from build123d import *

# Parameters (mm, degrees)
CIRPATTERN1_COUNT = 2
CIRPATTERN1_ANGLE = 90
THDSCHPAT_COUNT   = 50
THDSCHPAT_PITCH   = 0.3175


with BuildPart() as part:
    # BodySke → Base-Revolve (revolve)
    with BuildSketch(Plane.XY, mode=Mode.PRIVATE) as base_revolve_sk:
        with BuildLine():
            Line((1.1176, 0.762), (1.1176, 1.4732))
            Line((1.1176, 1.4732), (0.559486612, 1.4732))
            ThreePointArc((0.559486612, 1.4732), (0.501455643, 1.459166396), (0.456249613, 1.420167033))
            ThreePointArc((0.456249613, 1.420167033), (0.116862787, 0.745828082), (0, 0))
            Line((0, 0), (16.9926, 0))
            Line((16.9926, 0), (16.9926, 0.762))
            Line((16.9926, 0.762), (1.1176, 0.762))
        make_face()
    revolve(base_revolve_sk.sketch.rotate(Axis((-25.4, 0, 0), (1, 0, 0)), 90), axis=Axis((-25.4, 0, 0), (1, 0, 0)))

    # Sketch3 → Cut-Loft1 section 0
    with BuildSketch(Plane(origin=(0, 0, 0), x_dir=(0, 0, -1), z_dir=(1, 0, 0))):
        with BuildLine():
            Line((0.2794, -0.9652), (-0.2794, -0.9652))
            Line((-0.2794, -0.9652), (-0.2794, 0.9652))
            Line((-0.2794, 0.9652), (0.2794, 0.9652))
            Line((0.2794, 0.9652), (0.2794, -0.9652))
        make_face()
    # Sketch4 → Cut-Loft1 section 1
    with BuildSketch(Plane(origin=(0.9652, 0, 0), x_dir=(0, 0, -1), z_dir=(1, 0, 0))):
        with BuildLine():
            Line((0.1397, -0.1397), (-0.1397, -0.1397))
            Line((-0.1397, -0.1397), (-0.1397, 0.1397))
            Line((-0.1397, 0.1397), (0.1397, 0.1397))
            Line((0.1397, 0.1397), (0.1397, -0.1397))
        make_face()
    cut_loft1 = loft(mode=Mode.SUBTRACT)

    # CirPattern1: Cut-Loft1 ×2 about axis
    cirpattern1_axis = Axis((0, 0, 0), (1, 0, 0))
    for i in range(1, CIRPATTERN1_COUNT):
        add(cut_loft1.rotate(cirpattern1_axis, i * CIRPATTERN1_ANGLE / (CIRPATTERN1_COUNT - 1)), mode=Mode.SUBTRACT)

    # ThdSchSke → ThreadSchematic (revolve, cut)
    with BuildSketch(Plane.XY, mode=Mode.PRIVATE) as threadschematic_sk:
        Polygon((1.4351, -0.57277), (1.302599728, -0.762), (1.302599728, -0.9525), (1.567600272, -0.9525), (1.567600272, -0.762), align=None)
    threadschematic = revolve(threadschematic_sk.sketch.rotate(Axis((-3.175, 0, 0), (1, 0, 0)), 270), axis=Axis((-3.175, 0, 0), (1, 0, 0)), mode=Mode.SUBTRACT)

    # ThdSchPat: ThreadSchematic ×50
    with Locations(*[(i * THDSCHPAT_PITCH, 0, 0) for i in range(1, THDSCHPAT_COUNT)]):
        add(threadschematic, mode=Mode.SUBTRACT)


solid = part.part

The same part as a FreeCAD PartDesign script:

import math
import FreeCAD as App
import Part
import Sketcher

V = App.Vector
Q = App.Units.Quantity


def add_polygon(sketch, points):
    """Adds a closed chain of lines whose ends are joined by coincident constraints."""
    first, n = sketch.GeometryCount, len(points)
    for a, b in zip(points, points[1:] + points[:1]):
        sketch.addGeometry(Part.LineSegment(App.Vector(*a, 0), App.Vector(*b, 0)), False)
    for i in range(n):
        sketch.addConstraint(Sketcher.Constraint("Coincident", first + i, 2, first + (i + 1) % n, 1))

doc = App.newDocument("Part")
body = doc.addObject("PartDesign::Body", "Body")

# Sketch on XY plane
sketch1 = body.newObject("Sketcher::SketchObject", "Sketch")
sketch1.AttachmentSupport = (doc.getObject("XY_Plane"), [""])
sketch1.MapMode = "FlatFace"
sketch1.addGeometry([
    Part.LineSegment(V(1.12, 0.76, 0), V(1.12, 1.47, 0)),  # 0
    Part.LineSegment(V(1.12, 1.47, 0), V(0.56, 1.47, 0)),  # 1
    Part.ArcOfCircle(Part.Circle(V(0.56, 1.35, 0), V(0, 0, 1), 0.13), math.radians(90), math.radians(144)),  # 2
    Part.ArcOfCircle(Part.Circle(V(2.44, 0, 0), V(0, 0, 1), 2.44), math.radians(144), math.radians(180)),  # 3
    Part.LineSegment(V(0, 0, 0), V(16.99, 0, 0)),  # 4
    Part.LineSegment(V(16.99, 0, 0), V(16.99, 0.76, 0)),  # 5
    Part.LineSegment(V(16.99, 0.76, 0), V(1.12, 0.76, 0)),  # 6
], False)
sketch1.addConstraint([
    Sketcher.Constraint("Coincident", 0, 2, 1, 1),
    Sketcher.Constraint("Tangent", 1, 2, 2, 1),
    Sketcher.Constraint("Tangent", 2, 2, 3, 1),
    Sketcher.Constraint("Coincident", 3, 2, 4, 1),
    Sketcher.Constraint("Coincident", 4, 2, 5, 1),
    Sketcher.Constraint("Coincident", 5, 2, 6, 1),
    Sketcher.Constraint("Coincident", 6, 2, 0, 1),
    Sketcher.Constraint("Vertical", 0),
    Sketcher.Constraint("Horizontal", 1),
    Sketcher.Constraint("Horizontal", 4),
    Sketcher.Constraint("Vertical", 5),
    Sketcher.Constraint("Horizontal", 6),
    Sketcher.Constraint("Coincident", 3, 2, -1, 1),
    Sketcher.Constraint("PointOnObject", 3, 3, -1),
    Sketcher.Constraint("Radius", 2, Q("0.005 in")),
    Sketcher.Constraint("Radius", 3, Q("0.096 in")),
    Sketcher.Constraint("DistanceY", 5, 1, 5, 2, Q("0.03 in")),
    Sketcher.Constraint("DistanceX", 4, 1, 4, 2, Q("0.669 in")),
    Sketcher.Constraint("DistanceX", 6, 2, 6, 1, Q("0.625 in")),
    Sketcher.Constraint("DistanceY", 0, 1, 0, 2, Q("0.028 in")),
])
revolution = body.newObject("PartDesign::Revolution", "Revolution")
revolution.Profile = sketch1
revolution.ReferenceAxis = (sketch1, ["H_Axis"])
revolution.Angle = 360

# Sketch on YZ plane
sketch2 = body.newObject("Sketcher::SketchObject", "Sketch001")
sketch2.AttachmentSupport = (doc.getObject("YZ_Plane"), [""])
sketch2.MapMode = "FlatFace"
add_polygon(sketch2, [(-1, 0.3), (-1, -0.3), (1, -0.3), (1, 0.3)])  # lines 0-3
sketch2.addConstraint([
    Sketcher.Constraint("Vertical", 0),
    Sketcher.Constraint("Horizontal", 1),
    Sketcher.Constraint("Vertical", 2),
    Sketcher.Constraint("Horizontal", 3),
    Sketcher.Constraint("Symmetric", 0, 2, 2, 2, -1, 1),
    Sketcher.Constraint("DistanceX", 1, 1, 1, 2, Q("0.076 in")),
    Sketcher.Constraint("DistanceY", 0, 2, 0, 1, Q("0.022 in")),
])

# Sketch on YZ plane
sketch3 = body.newObject("Sketcher::SketchObject", "Sketch002")
sketch3.AttachmentSupport = (doc.getObject("YZ_Plane"), [""])
sketch3.MapMode = "FlatFace"
sketch3.AttachmentOffset = App.Placement(V(0, 0, 0.038 * 25.4), App.Rotation())
add_polygon(sketch3, [(-0.14, 0.14), (-0.14, -0.14), (0.14, -0.14), (0.14, 0.14)])  # lines 0-3
sketch3.addConstraint([
    Sketcher.Constraint("Vertical", 0),
    Sketcher.Constraint("Horizontal", 1),
    Sketcher.Constraint("Vertical", 2),
    Sketcher.Constraint("Horizontal", 3),
    Sketcher.Constraint("Symmetric", 0, 2, 2, 2, -1, 1),
    Sketcher.Constraint("Equal", 3, 0),
    Sketcher.Constraint("DistanceX", 1, 1, 1, 2, Q("0.011 in")),
])

subtractiveloft = body.newObject("PartDesign::SubtractiveLoft", "SubtractiveLoft")
subtractiveloft.Profile = sketch2
subtractiveloft.Sections = [sketch3]
doc.recompute()

polarpattern = body.newObject("PartDesign::PolarPattern", "PolarPattern")
polarpattern.Originals = [subtractiveloft]
polarpattern.Axis = (doc.getObject("X_Axis"), [""])
polarpattern.Angle = 90
polarpattern.Occurrences = 2
body.Tip = polarpattern

# Sketch on XY plane
sketch4 = body.newObject("Sketcher::SketchObject", "Sketch003")
sketch4.AttachmentSupport = (doc.getObject("XY_Plane"), [""])
sketch4.MapMode = "FlatFace"
add_polygon(sketch4, [(1.44, -0.57), (1.3, -0.76), (1.3, -0.95), (1.57, -0.95), (1.57, -0.76)])  # lines 0-4
sketch4.addConstraint([
    Sketcher.Constraint("Vertical", 1),
    Sketcher.Constraint("Horizontal", 2),
    Sketcher.Constraint("Vertical", 3),
    Sketcher.Constraint("Horizontal", 0, 2, 3, 2),
    Sketcher.Constraint("Equal", 0, 4),
    Sketcher.Constraint("Angle", 0, Q("-125 deg")),
    Sketcher.Constraint("DistanceY", 0, 2, -1, 1, Q("0.03 in")),
    Sketcher.Constraint("DistanceY", 1, 2, 1, 1, Q("0.0075 in")),
    Sketcher.Constraint("DistanceX", 2, 1, 2, 2, 0.265001),
    Sketcher.Constraint("DistanceX", -1, 1, 4, 2, Q("0.0565 in")),
])
groove = body.newObject("PartDesign::Groove", "Groove")
groove.Profile = sketch4
groove.ReferenceAxis = (sketch4, ["H_Axis"])
groove.Angle = 360
doc.recompute()

linearpattern = body.newObject("PartDesign::LinearPattern", "LinearPattern")
linearpattern.Originals = [groove]
linearpattern.Direction = (doc.getObject("X_Axis"), [""])
linearpattern.Mode = "offset"
linearpattern.Offset = Q("0.0125 in")
linearpattern.Occurrences = 50
body.Tip = linearpattern

doc.recompute()
